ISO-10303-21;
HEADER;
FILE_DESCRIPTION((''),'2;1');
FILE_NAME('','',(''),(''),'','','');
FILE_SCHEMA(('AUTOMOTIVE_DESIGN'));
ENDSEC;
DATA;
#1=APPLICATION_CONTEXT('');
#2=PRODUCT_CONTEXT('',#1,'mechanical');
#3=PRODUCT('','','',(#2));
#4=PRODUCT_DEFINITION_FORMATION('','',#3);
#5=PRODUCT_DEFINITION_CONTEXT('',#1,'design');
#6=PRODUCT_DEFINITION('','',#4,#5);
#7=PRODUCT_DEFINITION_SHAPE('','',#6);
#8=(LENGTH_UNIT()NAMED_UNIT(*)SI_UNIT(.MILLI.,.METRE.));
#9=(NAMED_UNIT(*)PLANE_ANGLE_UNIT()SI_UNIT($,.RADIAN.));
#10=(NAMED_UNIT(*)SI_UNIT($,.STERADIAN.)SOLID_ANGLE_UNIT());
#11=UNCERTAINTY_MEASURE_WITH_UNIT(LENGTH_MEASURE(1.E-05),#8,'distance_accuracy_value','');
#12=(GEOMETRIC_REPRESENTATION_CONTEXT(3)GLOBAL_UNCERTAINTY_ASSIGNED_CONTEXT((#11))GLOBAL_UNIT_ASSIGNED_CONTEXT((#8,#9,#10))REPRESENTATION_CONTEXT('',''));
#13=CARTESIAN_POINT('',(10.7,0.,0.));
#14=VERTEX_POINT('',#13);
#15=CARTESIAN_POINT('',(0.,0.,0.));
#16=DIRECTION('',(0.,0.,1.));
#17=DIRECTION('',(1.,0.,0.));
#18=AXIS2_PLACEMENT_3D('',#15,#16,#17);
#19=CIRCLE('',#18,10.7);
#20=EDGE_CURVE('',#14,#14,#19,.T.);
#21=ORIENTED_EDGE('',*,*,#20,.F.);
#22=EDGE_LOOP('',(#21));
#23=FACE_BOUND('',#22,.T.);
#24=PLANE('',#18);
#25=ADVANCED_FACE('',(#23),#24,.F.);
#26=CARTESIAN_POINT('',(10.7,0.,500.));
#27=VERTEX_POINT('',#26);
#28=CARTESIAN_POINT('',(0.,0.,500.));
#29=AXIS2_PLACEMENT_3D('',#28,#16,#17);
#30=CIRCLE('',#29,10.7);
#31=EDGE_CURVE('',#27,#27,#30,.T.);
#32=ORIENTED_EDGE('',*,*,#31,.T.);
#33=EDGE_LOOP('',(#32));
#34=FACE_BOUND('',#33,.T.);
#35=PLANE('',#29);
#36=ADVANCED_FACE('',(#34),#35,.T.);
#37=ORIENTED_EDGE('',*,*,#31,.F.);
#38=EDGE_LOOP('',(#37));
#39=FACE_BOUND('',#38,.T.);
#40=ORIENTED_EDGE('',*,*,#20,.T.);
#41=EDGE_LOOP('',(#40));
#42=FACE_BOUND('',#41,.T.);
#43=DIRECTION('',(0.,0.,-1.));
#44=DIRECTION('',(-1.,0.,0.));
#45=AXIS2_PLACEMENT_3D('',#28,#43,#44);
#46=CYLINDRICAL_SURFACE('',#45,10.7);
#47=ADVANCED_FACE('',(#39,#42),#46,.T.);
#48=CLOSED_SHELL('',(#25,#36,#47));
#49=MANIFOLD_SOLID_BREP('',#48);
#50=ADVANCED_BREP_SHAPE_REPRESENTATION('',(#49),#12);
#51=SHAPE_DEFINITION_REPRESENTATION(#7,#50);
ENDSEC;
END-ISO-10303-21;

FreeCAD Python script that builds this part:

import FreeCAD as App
import Part
import Sketcher

V = App.Vector

doc = App.newDocument("Part")
body = doc.addObject("PartDesign::Body", "Body")

sketch1 = doc.addObject("Sketcher::SketchObject", "Sketch")
body.addObject(sketch1)
sketch1.AttachmentSupport = (doc.XY_Plane, [""])
sketch1.MapMode = "FlatFace"
sketch1.addGeometry(Part.Circle(V(0, 0, 0), V(0, 0, 1), 11), False)
sketch1.addConstraint(Sketcher.Constraint("Coincident", 0, 3, -1, 1))
sketch1.addConstraint(Sketcher.Constraint("Diameter", 0, 21.4))
pad1 = doc.addObject("PartDesign::Pad", "Pad")
body.addObject(pad1)
pad1.Profile = sketch1
pad1.Length = 500

doc.recompute()
